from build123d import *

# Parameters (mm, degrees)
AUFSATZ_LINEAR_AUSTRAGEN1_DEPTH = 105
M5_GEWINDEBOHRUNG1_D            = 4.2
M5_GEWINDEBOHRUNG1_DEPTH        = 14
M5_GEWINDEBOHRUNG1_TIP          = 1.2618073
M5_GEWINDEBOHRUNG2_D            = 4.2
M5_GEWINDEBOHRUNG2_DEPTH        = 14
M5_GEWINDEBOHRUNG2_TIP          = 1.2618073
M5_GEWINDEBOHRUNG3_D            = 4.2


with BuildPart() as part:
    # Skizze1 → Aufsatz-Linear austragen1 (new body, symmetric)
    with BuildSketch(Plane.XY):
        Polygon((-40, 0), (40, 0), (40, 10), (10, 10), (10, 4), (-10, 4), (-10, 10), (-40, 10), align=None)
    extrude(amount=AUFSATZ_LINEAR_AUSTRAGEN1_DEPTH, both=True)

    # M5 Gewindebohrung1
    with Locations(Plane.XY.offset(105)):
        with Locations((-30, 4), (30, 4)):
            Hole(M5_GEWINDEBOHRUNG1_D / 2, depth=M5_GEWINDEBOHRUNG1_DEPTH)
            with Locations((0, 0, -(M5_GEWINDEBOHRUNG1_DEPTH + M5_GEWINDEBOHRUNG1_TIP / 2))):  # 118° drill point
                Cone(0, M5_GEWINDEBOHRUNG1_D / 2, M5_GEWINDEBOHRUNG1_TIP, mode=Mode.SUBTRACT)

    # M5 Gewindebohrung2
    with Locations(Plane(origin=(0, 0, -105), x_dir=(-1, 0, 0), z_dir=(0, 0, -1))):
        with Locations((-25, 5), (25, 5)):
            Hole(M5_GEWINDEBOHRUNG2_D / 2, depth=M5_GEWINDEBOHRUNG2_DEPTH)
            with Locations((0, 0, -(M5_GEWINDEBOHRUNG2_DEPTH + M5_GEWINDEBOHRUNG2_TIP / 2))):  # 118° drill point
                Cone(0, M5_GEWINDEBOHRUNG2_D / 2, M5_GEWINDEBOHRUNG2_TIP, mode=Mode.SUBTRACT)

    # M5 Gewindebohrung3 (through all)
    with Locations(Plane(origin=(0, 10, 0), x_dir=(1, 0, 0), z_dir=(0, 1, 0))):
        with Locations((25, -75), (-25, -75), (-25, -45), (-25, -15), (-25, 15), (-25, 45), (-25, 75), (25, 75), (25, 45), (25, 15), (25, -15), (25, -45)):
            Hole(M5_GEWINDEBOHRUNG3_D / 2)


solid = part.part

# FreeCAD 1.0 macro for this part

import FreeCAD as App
import Part
import Sketcher
Q = App.Units.Quantity

doc = App.newDocument("Part")
body = doc.addObject("PartDesign::Body", "Body")

# Sketch on XY plane
sketch1 = doc.addObject("Sketcher::SketchObject", "Sketch")
body.addObject(sketch1)
sketch1.AttachmentSupport = (doc.XY_Plane, [""])
sketch1.MapMode = "FlatFace"
sketch1.addGeometry([
    Part.LineSegment(App.Vector(-40, 0, 0), App.Vector(40, 0, 0)),  # 0
    Part.LineSegment(App.Vector(40, 0, 0), App.Vector(40, 10, 0)),  # 1
    Part.LineSegment(App.Vector(40, 10, 0), App.Vector(10, 10, 0)),  # 2
    Part.LineSegment(App.Vector(10, 10, 0), App.Vector(10, 4, 0)),  # 3
    Part.LineSegment(App.Vector(10, 4, 0), App.Vector(-10, 4, 0)),  # 4
    Part.LineSegment(App.Vector(-10, 4, 0), App.Vector(-10, 10, 0)),  # 5
    Part.LineSegment(App.Vector(-10, 10, 0), App.Vector(-40, 10, 0)),  # 6
    Part.LineSegment(App.Vector(-40, 10, 0), App.Vector(-40, 0, 0)),  # 7
], False)
sketch1.addConstraint([
    Sketcher.Constraint("Coincident", 0, 2, 1, 1),
    Sketcher.Constraint("Coincident", 1, 2, 2, 1),
    Sketcher.Constraint("Coincident", 2, 2, 3, 1),
    Sketcher.Constraint("Coincident", 3, 2, 4, 1),
    Sketcher.Constraint("Coincident", 4, 2, 5, 1),
    Sketcher.Constraint("Coincident", 5, 2, 6, 1),
    Sketcher.Constraint("Coincident", 6, 2, 7, 1),
    Sketcher.Constraint("Coincident", 7, 2, 0, 1),
    Sketcher.Constraint("Horizontal", 0),
    Sketcher.Constraint("Vertical", 1),
    Sketcher.Constraint("Horizontal", 2),
    Sketcher.Constraint("Vertical", 3),
    Sketcher.Constraint("Horizontal", 4),
    Sketcher.Constraint("Vertical", 5),
    Sketcher.Constraint("Horizontal", 6),
    Sketcher.Constraint("Vertical", 7),
    Sketcher.Constraint("Symmetric", 0, 2, 7, 2, -1, 1),
    Sketcher.Constraint("Symmetric", 2, 2, 5, 2, -2),
    Sketcher.Constraint("DistanceX", 0, 1, 0, 2, Q("80 mm")),
    Sketcher.Constraint("DistanceX", 2, 2, 2, 1, Q("30 mm")),
    Sketcher.Constraint("DistanceY", 1, 1, 1, 2, Q("10 mm")),
    Sketcher.Constraint("DistanceY", 3, 2, 3, 1, Q("6 mm")),
])
pad1 = doc.addObject("PartDesign::Pad", "Pad")
body.addObject(pad1)
pad1.Profile = sketch1
pad1.Length = 210
pad1.Midplane = True

# Sketch on XY plane
sketch2 = doc.addObject("Sketcher::SketchObject", "Sketch001")
body.addObject(sketch2)
sketch2.AttachmentSupport = (doc.XY_Plane, [""])
sketch2.MapMode = "FlatFace"
sketch2.AttachmentOffset = App.Placement(App.Vector(0, 0, 105), App.Rotation())
sketch2.addGeometry([
    Part.Circle(App.Vector(-30, 4, 0), App.Vector(0, 0, 1), 2.1),
    Part.Circle(App.Vector(30, 4, 0), App.Vector(0, 0, 1), 2.1),
], False)
sketch2.addConstraint([
    Sketcher.Constraint("Equal", 0, 1),
    Sketcher.Constraint("Symmetric", 0, 3, 1, 3, -2),
    Sketcher.Constraint("Diameter", 0, Q("4.2 mm")),
    Sketcher.Constraint("DistanceX", 0, 3, -1, 1, Q("30 mm")),
    Sketcher.Constraint("DistanceY", -1, 1, 0, 3, Q("4 mm")),
])
doc.recompute()
hole = doc.addObject("PartDesign::Hole", "Hole")
body.addObject(hole)
hole.Profile = sketch2
hole.ThreadType = "None"
hole.Diameter = 4.2
hole.DepthType = "Dimension"
hole.Depth = 14
hole.DrillPoint = "Angled"
hole.DrillPointAngle = 118

# Sketch on XY plane
sketch3 = doc.addObject("Sketcher::SketchObject", "Sketch002")
body.addObject(sketch3)
sketch3.AttachmentSupport = (doc.XY_Plane, [""])
sketch3.MapMode = "FlatFace"
sketch3.AttachmentOffset = App.Placement(App.Vector(0, 0, -105), App.Rotation())
sketch3.addGeometry([
    Part.Circle(App.Vector(25, 5, 0), App.Vector(0, 0, 1), 2.1),
    Part.Circle(App.Vector(-25, 5, 0), App.Vector(0, 0, 1), 2.1),
], False)
sketch3.addConstraint([
    Sketcher.Constraint("Equal", 0, 1),
    Sketcher.Constraint("Symmetric", 0, 3, 1, 3, -2),
    Sketcher.Constraint("Diameter", 0, Q("4.2 mm")),
    Sketcher.Constraint("DistanceX", -1, 1, 0, 3, Q("25 mm")),
    Sketcher.Constraint("DistanceY", -1, 1, 0, 3, Q("5 mm")),
])
doc.recompute()
hole2 = doc.addObject("PartDesign::Hole", "Hole001")
body.addObject(hole2)
hole2.Profile = sketch3
hole2.ThreadType = "None"
hole2.Diameter = 4.2
hole2.DepthType = "Dimension"
hole2.Depth = 14
hole2.DrillPoint = "Angled"
hole2.DrillPointAngle = 118
hole2.Reversed = True

# Sketch on XZ plane
sketch4 = doc.addObject("Sketcher::SketchObject", "Sketch003")
body.addObject(sketch4)
sketch4.AttachmentSupport = (doc.XZ_Plane, [""])
sketch4.MapMode = "FlatFace"
sketch4.AttachmentOffset = App.Placement(App.Vector(0, 0, -10), App.Rotation())
sketch4.addGeometry([
    Part.Circle(App.Vector(25, 75, 0), App.Vector(0, 0, 1), 2.1),  # 0
    Part.Circle(App.Vector(-25, 75, 0), App.Vector(0, 0, 1), 2.1),  # 1
    Part.Circle(App.Vector(-25, 45, 0), App.Vector(0, 0, 1), 2.1),  # 2
    Part.Circle(App.Vector(-25, 15, 0), App.Vector(0, 0, 1), 2.1),  # 3
    Part.Circle(App.Vector(-25, -15, 0), App.Vector(0, 0, 1), 2.1),  # 4
    Part.Circle(App.Vector(-25, -45, 0), App.Vector(0, 0, 1), 2.1),  # 5
    Part.Circle(App.Vector(-25, -75, 0), App.Vector(0, 0, 1), 2.1),  # 6
    Part.Circle(App.Vector(25, -75, 0), App.Vector(0, 0, 1), 2.1),  # 7
    Part.Circle(App.Vector(25, -45, 0), App.Vector(0, 0, 1), 2.1),  # 8
    Part.Circle(App.Vector(25, -15, 0), App.Vector(0, 0, 1), 2.1),  # 9
    Part.Circle(App.Vector(25, 15, 0), App.Vector(0, 0, 1), 2.1),  # 10
    Part.Circle(App.Vector(25, 45, 0), App.Vector(0, 0, 1), 2.1),  # 11
], False)
sketch4.addConstraint([
    Sketcher.Constraint("Equal", 0, 1),
    Sketcher.Constraint("Equal", 1, 2),
    Sketcher.Constraint("Equal", 2, 3),
    Sketcher.Constraint("Equal", 3, 4),
    Sketcher.Constraint("Equal", 4, 5),
    Sketcher.Constraint("Equal", 5, 6),
    Sketcher.Constraint("Equal", 6, 7),
    Sketcher.Constraint("Equal", 7, 8),
    Sketcher.Constraint("Equal", 8, 9),
    Sketcher.Constraint("Equal", 9, 10),
    Sketcher.Constraint("Equal", 10, 11),
    Sketcher.Constraint("Symmetric", 0, 3, 6, 3, -1, 1),
    Sketcher.Constraint("Symmetric", 1, 3, 7, 3, -1, 1),
    Sketcher.Constraint("Symmetric", 2, 3, 8, 3, -1, 1),
    Sketcher.Constraint("Symmetric", 3, 3, 9, 3, -1, 1),
    Sketcher.Constraint("Symmetric", 4, 3, 10, 3, -1, 1),
    Sketcher.Constraint("Symmetric", 5, 3, 11, 3, -1, 1),
    Sketcher.Constraint("Symmetric", 0, 3, 1, 3, -2),
    Sketcher.Constraint("Symmetric", 5, 3, 8, 3, -2),
    Sketcher.Constraint("Symmetric", 4, 3, 9, 3, -2),
    Sketcher.Constraint("Vertical", 1, 3, 2, 3),
    Sketcher.Constraint("Vertical", 2, 3, 3, 3),
    Sketcher.Constraint("Diameter", 0, Q("4.2 mm")),
    Sketcher.Constraint("DistanceX", -1, 1, 0, 3, Q("25 mm")),
    Sketcher.Constraint("DistanceY", -1, 1, 0, 3, Q("75 mm")),
    Sketcher.Constraint("DistanceY", -1, 1, 2, 3, Q("45 mm")),
    Sketcher.Constraint("DistanceY", -1, 1, 3, 3, Q("15 mm")),
])
doc.recompute()
hole3 = doc.addObject("PartDesign::Hole", "Hole002")
body.addObject(hole3)
hole3.Profile = sketch4
hole3.ThreadType = "None"
hole3.Diameter = 4.2
hole3.DepthType = "ThroughAll"
hole3.Reversed = True

doc.recompute()
